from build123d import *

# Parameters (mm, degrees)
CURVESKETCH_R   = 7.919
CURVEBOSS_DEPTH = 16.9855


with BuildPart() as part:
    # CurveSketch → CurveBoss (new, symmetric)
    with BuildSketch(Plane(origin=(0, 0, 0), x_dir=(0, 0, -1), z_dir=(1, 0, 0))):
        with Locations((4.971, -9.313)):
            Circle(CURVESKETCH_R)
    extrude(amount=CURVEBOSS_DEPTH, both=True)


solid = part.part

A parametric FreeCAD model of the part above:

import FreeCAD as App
import Part
import Sketcher
from FreeCAD import Vector

doc = App.newDocument("Part")
body = doc.addObject("PartDesign::Body", "Body")

sketch1 = body.newObject("Sketcher::SketchObject", "Sketch")
sketch1.AttachmentSupport = (doc.getObject("YZ_Plane"), [""])
sketch1.MapMode = "FlatFace"
sketch1.addGeometry(Part.Circle(Vector(-9, -5, 0), Vector(0, 0, 1), 8), False)
sketch1.addConstraint(Sketcher.Constraint("Diameter", 0, 15.838))
sketch1.addConstraint(Sketcher.Constraint("DistanceX", 0, 3, -1, 1, 9.313))
sketch1.addConstraint(Sketcher.Constraint("DistanceY", 0, 3, -1, 1, 4.971))
pad1 = body.newObject("PartDesign::Pad", "Pad")
pad1.Profile = sketch1
pad1.Length = 33.971
pad1.Midplane = True

doc.recompute()
